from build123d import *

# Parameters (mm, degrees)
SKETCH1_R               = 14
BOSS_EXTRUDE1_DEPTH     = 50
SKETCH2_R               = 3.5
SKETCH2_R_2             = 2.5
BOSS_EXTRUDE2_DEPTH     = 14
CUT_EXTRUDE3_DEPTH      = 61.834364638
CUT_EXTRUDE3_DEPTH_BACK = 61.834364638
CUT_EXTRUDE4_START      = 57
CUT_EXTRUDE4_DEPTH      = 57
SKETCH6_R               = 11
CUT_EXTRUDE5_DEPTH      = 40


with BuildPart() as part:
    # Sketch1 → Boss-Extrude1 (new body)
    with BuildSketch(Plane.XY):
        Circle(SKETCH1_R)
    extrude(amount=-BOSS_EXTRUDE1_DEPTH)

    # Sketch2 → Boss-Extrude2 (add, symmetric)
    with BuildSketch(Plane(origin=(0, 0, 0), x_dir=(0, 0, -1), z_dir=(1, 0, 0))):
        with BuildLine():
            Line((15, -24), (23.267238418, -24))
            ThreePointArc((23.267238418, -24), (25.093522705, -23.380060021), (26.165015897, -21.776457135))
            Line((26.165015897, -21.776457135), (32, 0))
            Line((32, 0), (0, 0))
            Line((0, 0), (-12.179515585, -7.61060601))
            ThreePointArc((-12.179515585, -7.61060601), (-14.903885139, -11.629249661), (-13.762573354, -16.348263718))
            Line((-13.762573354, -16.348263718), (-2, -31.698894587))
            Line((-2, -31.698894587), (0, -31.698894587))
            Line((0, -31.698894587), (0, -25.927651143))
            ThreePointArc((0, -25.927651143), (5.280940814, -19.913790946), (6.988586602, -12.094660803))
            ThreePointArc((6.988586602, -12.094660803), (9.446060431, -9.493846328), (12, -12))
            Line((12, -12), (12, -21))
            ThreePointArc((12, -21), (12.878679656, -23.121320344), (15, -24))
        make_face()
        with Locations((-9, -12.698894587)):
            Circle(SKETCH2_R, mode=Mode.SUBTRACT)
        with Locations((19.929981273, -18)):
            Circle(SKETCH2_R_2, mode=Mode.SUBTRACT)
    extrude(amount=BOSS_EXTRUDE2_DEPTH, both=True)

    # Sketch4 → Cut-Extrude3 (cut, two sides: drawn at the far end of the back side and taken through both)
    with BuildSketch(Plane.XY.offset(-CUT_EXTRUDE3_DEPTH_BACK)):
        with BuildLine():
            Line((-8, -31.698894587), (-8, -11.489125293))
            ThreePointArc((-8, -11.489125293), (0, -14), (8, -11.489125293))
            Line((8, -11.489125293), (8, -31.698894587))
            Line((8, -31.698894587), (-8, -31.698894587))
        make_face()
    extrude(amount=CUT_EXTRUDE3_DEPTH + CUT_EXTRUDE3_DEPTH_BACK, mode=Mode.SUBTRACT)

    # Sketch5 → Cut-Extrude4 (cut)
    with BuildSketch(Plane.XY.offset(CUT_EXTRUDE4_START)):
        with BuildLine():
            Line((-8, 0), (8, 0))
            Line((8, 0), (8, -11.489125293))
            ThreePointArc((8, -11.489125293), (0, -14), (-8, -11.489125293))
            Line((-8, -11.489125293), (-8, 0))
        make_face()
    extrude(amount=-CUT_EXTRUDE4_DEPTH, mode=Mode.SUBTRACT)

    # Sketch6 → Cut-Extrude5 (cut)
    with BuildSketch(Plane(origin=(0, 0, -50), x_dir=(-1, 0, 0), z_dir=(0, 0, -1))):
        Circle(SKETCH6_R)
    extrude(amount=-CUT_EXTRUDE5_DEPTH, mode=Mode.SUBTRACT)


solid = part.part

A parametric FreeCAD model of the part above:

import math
import FreeCAD as App
import Part
import Sketcher
from FreeCAD import Vector
Q = App.Units.Quantity

doc = App.newDocument("Part")
body = doc.addObject("PartDesign::Body", "Body")

sketch1 = doc.addObject("Sketcher::SketchObject", "Sketch")
body.addObject(sketch1)
sketch1.AttachmentSupport = (doc.XY_Plane, [""])
sketch1.MapMode = "FlatFace"
sketch1.addGeometry(Part.Circle(Vector(0, 0, 0), Vector(0, 0, 1), 14), False)
sketch1.addConstraint([
    Sketcher.Constraint("Coincident", 0, 3, -1, 1),
    Sketcher.Constraint("Diameter", 0, Q("28 mm")),
])
pad1 = doc.addObject("PartDesign::Pad", "Pad")
body.addObject(pad1)
pad1.Profile = sketch1
pad1.Length = 50
pad1.Reversed = True

sketch2 = doc.addObject("Sketcher::SketchObject", "Sketch001")
body.addObject(sketch2)
sketch2.AttachmentSupport = (doc.YZ_Plane, [""])
sketch2.MapMode = "FlatFace"
sketch2.addGeometry([
    Part.LineSegment(Vector(-24, -15, 0), Vector(-24, -23.3, 0)),
    Part.ArcOfCircle(Part.Circle(Vector(-21, -23.3, 0), Vector(0, 0, 1), 3), math.radians(180), math.radians(255)),
    Part.LineSegment(Vector(-21.8, -26.2, 0), Vector(0, -32, 0)),
    Part.LineSegment(Vector(0, -32, 0), Vector(0, 0, 0)),
    Part.LineSegment(Vector(0, 0, 0), Vector(-7.6, 12.2, 0)),
    Part.ArcOfCircle(Part.Circle(Vector(-12.7, 9, 0), Vector(0, 0, 1), 6), math.radians(32), math.radians(127)),
    Part.LineSegment(Vector(-16.3, 13.8, 0), Vector(-31.7, 2, 0)),
    Part.LineSegment(Vector(-31.7, 2, 0), Vector(-31.7, 0, 0)),
    Part.LineSegment(Vector(-31.7, 0, 0), Vector(-25.9, 0, 0)),
    Part.ArcOfCircle(Part.Circle(Vector(-12.7, 9, 0), Vector(0, 0, 1), 16), math.radians(-146), math.radians(-88)),
    Part.ArcOfCircle(Part.Circle(Vector(-12, -9.5, 0), Vector(0, 0, 1), 2.5), math.radians(-90), math.radians(92)),
    Part.LineSegment(Vector(-12, -12, 0), Vector(-21, -12, 0)),
    Part.ArcOfCircle(Part.Circle(Vector(-21, -15, 0), Vector(0, 0, 1), 3), math.radians(90), math.radians(180)),
    Part.Circle(Vector(-18, -19.9, 0), Vector(0, 0, 1), 2.5),
    Part.Circle(Vector(-12.7, 9, 0), Vector(0, 0, 1), 3.5),
], False)
sketch2.addConstraint([
    Sketcher.Constraint("Tangent", 0, 2, 1, 1),
    Sketcher.Constraint("Tangent", 1, 2, 2, 1),
    Sketcher.Constraint("Coincident", 2, 2, 3, 1),
    Sketcher.Constraint("Coincident", 3, 2, 4, 1),
    Sketcher.Constraint("Tangent", 4, 2, 5, 1),
    Sketcher.Constraint("Tangent", 5, 2, 6, 1),
    Sketcher.Constraint("Coincident", 6, 2, 7, 1),
    Sketcher.Constraint("Coincident", 7, 2, 8, 1),
    Sketcher.Constraint("Coincident", 8, 2, 9, 1),
    Sketcher.Constraint("Tangent", 9, 2, 10, 2),
    Sketcher.Constraint("Tangent", 10, 1, 11, 1),
    Sketcher.Constraint("Tangent", 11, 2, 12, 1),
    Sketcher.Constraint("Tangent", 12, 2, 0, 1),
    Sketcher.Constraint("Vertical", 0),
    Sketcher.Constraint("Vertical", 3),
    Sketcher.Constraint("Vertical", 7),
    Sketcher.Constraint("Horizontal", 8),
    Sketcher.Constraint("Horizontal", 11),
    Sketcher.Constraint("Coincident", 3, 2, -1, 1),
    Sketcher.Constraint("Coincident", 9, 3, 5, 3),
    Sketcher.Constraint("Coincident", 14, 3, 5, 3),
    Sketcher.Constraint("Equal", 1, 12),
    Sketcher.Constraint("PointOnObject", 7, 2, -1),
    Sketcher.Constraint("Diameter", 13, Q("5 mm")),
    Sketcher.Constraint("Diameter", 14, Q("7 mm")),
    Sketcher.Constraint("Radius", 1, Q("3 mm")),
    Sketcher.Constraint("Radius", 5, Q("6 mm")),
    Sketcher.Constraint("Radius", 9, Q("16 mm")),
    Sketcher.Constraint("DistanceX", 11, 2, 11, 1, Q("9 mm")),
    Sketcher.Constraint("DistanceY", 3, 1, 3, 2, Q("32 mm")),
    Sketcher.Constraint("DistanceY", 7, 2, 7, 1, Q("2 mm")),
    Sketcher.Constraint("Angle", 2, Q("-15 deg")),
    Sketcher.Constraint("Angle", 4, Q("122 deg")),
    Sketcher.Constraint("DistanceX", 1, 3, -1, 1, Q("21 mm")),
    Sketcher.Constraint("DistanceY", -1, 1, 5, 3, Q("9 mm")),
    Sketcher.Constraint("DistanceY", 12, 3, -1, 1, Q("15 mm")),
    Sketcher.Constraint("DistanceX", 13, 3, -1, 1, Q("18 mm")),
    Sketcher.Constraint("DistanceX", 6, 2, 5, 3, Q("19 mm")),
    Sketcher.Constraint("DistanceY", 13, 3, -1, 1, Q("19.929981 mm")),
])
pad2 = doc.addObject("PartDesign::Pad", "Pad001")
body.addObject(pad2)
pad2.Profile = sketch2
pad2.Length = 28
pad2.Midplane = True

sketch3 = doc.addObject("Sketcher::SketchObject", "Sketch002")
body.addObject(sketch3)
sketch3.AttachmentSupport = (doc.XY_Plane, [""])
sketch3.MapMode = "FlatFace"
sketch3.addGeometry([
    Part.LineSegment(Vector(-8, -11, 0), Vector(-8, -32, 0)),
    Part.LineSegment(Vector(-8, -32, 0), Vector(8, -32, 0)),
    Part.LineSegment(Vector(8, -32, 0), Vector(8, -11, 0)),
    Part.ArcOfCircle(Part.Circle(Vector(0, 0, 0), Vector(0, 0, 1), 14), math.radians(-125), math.radians(-55)),
], False)
sketch3.addConstraint([
    Sketcher.Constraint("Coincident", 0, 2, 1, 1),
    Sketcher.Constraint("Coincident", 1, 2, 2, 1),
    Sketcher.Constraint("Coincident", 2, 2, 3, 2),
    Sketcher.Constraint("Coincident", 3, 1, 0, 1),
    Sketcher.Constraint("Vertical", 0),
    Sketcher.Constraint("Horizontal", 1),
    Sketcher.Constraint("Vertical", 2),
    Sketcher.Constraint("Coincident", 3, 3, -1, 1),
    Sketcher.Constraint("Horizontal", 2, 2, 3, 1),
    Sketcher.Constraint("Radius", 3, Q("14 mm")),
    Sketcher.Constraint("DistanceX", 1, 1, 1, 2, Q("16 mm")),
    Sketcher.Constraint("DistanceY", 0, 2, 0, 1, Q("20.209769 mm")),
])
pocket1 = doc.addObject("PartDesign::Pocket", "Pocket")
body.addObject(pocket1)
pocket1.Profile = sketch3
pocket1.Type = "ThroughAll"
pocket1.Midplane = True

sketch4 = doc.addObject("Sketcher::SketchObject", "Sketch003")
body.addObject(sketch4)
sketch4.AttachmentSupport = (doc.XY_Plane, [""])
sketch4.MapMode = "FlatFace"
sketch4.AttachmentOffset = App.Placement(Vector(0, 0, 57), App.Rotation())
sketch4.addGeometry([
    Part.LineSegment(Vector(8, 0, 0), Vector(-8, 0, 0)),
    Part.LineSegment(Vector(-8, 0, 0), Vector(-8, -11, 0)),
    Part.ArcOfCircle(Part.Circle(Vector(0, 0, 0), Vector(0, 0, 1), 14), math.radians(-125), math.radians(-55)),
    Part.LineSegment(Vector(8, -11, 0), Vector(8, 0, 0)),
], False)
sketch4.addConstraint([
    Sketcher.Constraint("Coincident", 0, 2, 1, 1),
    Sketcher.Constraint("Coincident", 1, 2, 2, 1),
    Sketcher.Constraint("Coincident", 2, 2, 3, 1),
    Sketcher.Constraint("Coincident", 3, 2, 0, 1),
    Sketcher.Constraint("Horizontal", 0),
    Sketcher.Constraint("Vertical", 1),
    Sketcher.Constraint("Vertical", 3),
    Sketcher.Constraint("Coincident", 2, 3, -1, 1),
    Sketcher.Constraint("Symmetric", 0, 2, 3, 2, -1, 1),
    Sketcher.Constraint("Radius", 2, Q("14 mm")),
    Sketcher.Constraint("DistanceX", 0, 2, 0, 1, Q("16 mm")),
])
pocket2 = doc.addObject("PartDesign::Pocket", "Pocket001")
body.addObject(pocket2)
pocket2.Profile = sketch4
pocket2.Length = 57

sketch5 = doc.addObject("Sketcher::SketchObject", "Sketch004")
body.addObject(sketch5)
sketch5.AttachmentSupport = (doc.XY_Plane, [""])
sketch5.MapMode = "FlatFace"
sketch5.AttachmentOffset = App.Placement(Vector(0, 0, -50), App.Rotation())
sketch5.addGeometry(Part.Circle(Vector(0, 0, 0), Vector(0, 0, 1), 11), False)
sketch5.addConstraint([
    Sketcher.Constraint("Coincident", 0, 3, -1, 1),
    Sketcher.Constraint("Diameter", 0, Q("22 mm")),
])
pocket3 = doc.addObject("PartDesign::Pocket", "Pocket002")
body.addObject(pocket3)
pocket3.Profile = sketch5
pocket3.Length = 40
pocket3.Reversed = True

doc.recompute()
